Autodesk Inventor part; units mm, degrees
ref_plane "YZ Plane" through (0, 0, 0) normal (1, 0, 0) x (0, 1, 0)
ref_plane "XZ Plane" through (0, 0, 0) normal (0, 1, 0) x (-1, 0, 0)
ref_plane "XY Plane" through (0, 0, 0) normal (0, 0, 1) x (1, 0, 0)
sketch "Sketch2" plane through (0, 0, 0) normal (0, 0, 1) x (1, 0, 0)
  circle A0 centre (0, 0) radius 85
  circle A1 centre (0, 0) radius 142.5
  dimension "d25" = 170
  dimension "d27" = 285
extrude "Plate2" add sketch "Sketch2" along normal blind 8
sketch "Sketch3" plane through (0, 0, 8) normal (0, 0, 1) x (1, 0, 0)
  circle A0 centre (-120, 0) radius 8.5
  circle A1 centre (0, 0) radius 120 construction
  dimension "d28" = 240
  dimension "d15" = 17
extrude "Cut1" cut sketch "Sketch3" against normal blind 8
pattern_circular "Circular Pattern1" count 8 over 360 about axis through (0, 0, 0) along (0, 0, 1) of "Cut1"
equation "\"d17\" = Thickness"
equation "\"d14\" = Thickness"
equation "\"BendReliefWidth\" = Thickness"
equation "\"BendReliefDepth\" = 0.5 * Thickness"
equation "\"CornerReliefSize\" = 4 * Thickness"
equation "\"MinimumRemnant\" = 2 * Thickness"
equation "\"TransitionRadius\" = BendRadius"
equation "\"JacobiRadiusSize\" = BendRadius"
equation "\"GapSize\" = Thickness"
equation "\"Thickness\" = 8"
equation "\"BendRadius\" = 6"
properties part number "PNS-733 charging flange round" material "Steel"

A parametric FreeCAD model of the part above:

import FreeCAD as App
import Part
import Sketcher
Q = App.Units.Quantity

doc = App.newDocument("Part")
body = doc.addObject("PartDesign::Body", "Body")

# Sketch on XY plane
sketch1 = doc.addObject("Sketcher::SketchObject", "Sketch")
body.addObject(sketch1)
sketch1.AttachmentSupport = (doc.XY_Plane, [""])
sketch1.MapMode = "FlatFace"
sketch1.addGeometry(Part.Circle(App.Vector(0, 0, 0), App.Vector(0, 0, 1), 142.5), False)
sketch1.addGeometry(Part.Circle(App.Vector(0, 0, 0), App.Vector(0, 0, 1), 85), False)
sketch1.addConstraint(Sketcher.Constraint("Coincident", 0, 3, -1, 1))
sketch1.addConstraint(Sketcher.Constraint("Coincident", 1, 3, -1, 1))
sketch1.addConstraint(Sketcher.Constraint("Diameter", 0, Q("285 mm")))
sketch1.addConstraint(Sketcher.Constraint("Diameter", 1, Q("170 mm")))
pad1 = doc.addObject("PartDesign::Pad", "Pad")
body.addObject(pad1)
pad1.Profile = sketch1
pad1.Length = 8

# Sketch on XY plane
sketch2 = doc.addObject("Sketcher::SketchObject", "Sketch001")
body.addObject(sketch2)
sketch2.AttachmentSupport = (doc.XY_Plane, [""])
sketch2.MapMode = "FlatFace"
sketch2.AttachmentOffset = App.Placement(App.Vector(0, 0, 8), App.Rotation())
sketch2.addGeometry(Part.Circle(App.Vector(-120, 0, 0), App.Vector(0, 0, 1), 8.5), False)
sketch2.addConstraint(Sketcher.Constraint("PointOnObject", 0, 3, -1))
sketch2.addConstraint(Sketcher.Constraint("Diameter", 0, Q("17 mm")))
sketch2.addConstraint(Sketcher.Constraint("DistanceX", 0, 3, -1, 1, Q("120 mm")))
pocket1 = doc.addObject("PartDesign::Pocket", "Pocket")
body.addObject(pocket1)
pocket1.Profile = sketch2
pocket1.Length = 8
doc.recompute()

polarpattern = doc.addObject("PartDesign::PolarPattern", "PolarPattern")
body.addObject(polarpattern)
polarpattern.Originals = [pocket1]
polarpattern.Axis = (doc.Z_Axis, [""])
polarpattern.Angle = 360
polarpattern.Occurrences = 8
body.Tip = polarpattern

doc.recompute()
